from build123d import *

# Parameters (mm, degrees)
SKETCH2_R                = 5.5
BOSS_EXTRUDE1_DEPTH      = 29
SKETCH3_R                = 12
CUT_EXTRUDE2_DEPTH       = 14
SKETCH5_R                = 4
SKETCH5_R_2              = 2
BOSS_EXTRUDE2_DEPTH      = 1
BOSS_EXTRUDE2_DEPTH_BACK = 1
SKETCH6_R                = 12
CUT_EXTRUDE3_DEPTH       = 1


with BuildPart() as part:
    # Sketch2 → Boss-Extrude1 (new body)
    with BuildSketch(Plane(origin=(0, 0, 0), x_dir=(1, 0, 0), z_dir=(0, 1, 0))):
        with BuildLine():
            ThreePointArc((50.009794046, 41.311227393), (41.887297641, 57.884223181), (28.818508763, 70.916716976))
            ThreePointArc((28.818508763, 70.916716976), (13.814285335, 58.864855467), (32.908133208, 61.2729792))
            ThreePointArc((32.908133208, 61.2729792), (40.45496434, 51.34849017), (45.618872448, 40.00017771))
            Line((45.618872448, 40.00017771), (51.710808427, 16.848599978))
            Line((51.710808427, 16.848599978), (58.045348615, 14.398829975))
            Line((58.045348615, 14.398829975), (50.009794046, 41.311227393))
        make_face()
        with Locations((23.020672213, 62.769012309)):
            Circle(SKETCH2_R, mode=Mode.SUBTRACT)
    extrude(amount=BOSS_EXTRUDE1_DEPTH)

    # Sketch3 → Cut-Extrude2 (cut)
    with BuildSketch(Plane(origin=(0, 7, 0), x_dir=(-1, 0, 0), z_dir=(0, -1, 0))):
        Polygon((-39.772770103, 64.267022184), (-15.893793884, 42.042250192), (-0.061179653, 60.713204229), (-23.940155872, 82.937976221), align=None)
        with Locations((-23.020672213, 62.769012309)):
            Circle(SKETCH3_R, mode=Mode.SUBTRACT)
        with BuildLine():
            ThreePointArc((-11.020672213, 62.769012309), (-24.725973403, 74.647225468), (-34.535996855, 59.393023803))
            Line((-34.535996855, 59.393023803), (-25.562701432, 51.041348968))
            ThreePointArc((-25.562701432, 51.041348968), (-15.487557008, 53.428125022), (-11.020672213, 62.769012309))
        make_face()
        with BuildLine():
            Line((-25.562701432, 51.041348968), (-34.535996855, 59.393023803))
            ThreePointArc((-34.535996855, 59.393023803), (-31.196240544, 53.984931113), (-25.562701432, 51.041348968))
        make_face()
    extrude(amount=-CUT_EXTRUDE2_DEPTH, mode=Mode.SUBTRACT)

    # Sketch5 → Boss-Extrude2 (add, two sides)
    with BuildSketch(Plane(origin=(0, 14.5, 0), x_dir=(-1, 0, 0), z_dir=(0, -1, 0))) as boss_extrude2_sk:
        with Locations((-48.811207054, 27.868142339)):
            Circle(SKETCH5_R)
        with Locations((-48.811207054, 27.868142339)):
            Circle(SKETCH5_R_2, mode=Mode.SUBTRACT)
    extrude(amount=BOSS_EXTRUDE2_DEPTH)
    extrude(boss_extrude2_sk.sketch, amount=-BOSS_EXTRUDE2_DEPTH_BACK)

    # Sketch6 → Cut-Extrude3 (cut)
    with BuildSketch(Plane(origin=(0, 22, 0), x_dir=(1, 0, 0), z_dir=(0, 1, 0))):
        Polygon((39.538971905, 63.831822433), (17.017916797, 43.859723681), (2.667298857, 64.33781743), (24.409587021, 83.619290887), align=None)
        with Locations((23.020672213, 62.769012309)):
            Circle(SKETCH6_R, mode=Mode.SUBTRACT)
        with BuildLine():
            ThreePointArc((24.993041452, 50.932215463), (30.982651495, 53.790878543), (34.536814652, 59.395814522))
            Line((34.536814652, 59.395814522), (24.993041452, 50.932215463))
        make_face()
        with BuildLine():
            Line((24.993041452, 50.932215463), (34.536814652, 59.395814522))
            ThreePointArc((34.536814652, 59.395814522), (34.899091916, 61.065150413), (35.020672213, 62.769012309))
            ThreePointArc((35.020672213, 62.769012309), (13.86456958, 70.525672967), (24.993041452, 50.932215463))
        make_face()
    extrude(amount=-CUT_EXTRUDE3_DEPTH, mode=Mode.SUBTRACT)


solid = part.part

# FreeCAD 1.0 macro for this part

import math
import FreeCAD as App
import Part
import Sketcher

V = App.Vector
Q = App.Units.Quantity

doc = App.newDocument("Part")
body = doc.addObject("PartDesign::Body", "Body")

# Sketch on XZ plane
sketch1 = doc.addObject("Sketcher::SketchObject", "Sketch")
body.addObject(sketch1)
sketch1.AttachmentSupport = (doc.XZ_Plane, [""])
sketch1.MapMode = "FlatFace"
sketch1.addGeometry([
    Part.ArcOfCircle(Part.Circle(V(-4, -25, 0), V(0, 0, 1), 56), math.radians(-55), math.radians(-17)),  # 0
    Part.ArcOfCircle(Part.Circle(V(23, -63, 0), V(0, 0, 1), 10), math.radians(9), math.radians(305)),  # 1
    Part.ArcOfCircle(Part.Circle(V(-8, -23, 0), V(0, 0, 1), 56), math.radians(-44), math.radians(-18)),  # 2
    Part.LineSegment(V(46, -40, 0), V(52, -17, 0)),  # 3
    Part.LineSegment(V(52, -17, 0), V(58, -14, 0)),  # 4
    Part.LineSegment(V(58, -14, 0), V(50, -41, 0)),  # 5
    Part.Circle(V(23, -63, 0), V(0, 0, 1), 6),  # 6
], False)
sketch1.addConstraint([
    Sketcher.Constraint("Tangent", 0, 1, 1, 2),
    Sketcher.Constraint("Coincident", 1, 1, 2, 1),
    Sketcher.Constraint("Coincident", 2, 2, 3, 1),
    Sketcher.Constraint("Coincident", 3, 2, 4, 1),
    Sketcher.Constraint("Coincident", 4, 2, 5, 1),
    Sketcher.Constraint("Tangent", 5, 2, 0, 2),
    Sketcher.Constraint("Coincident", 6, 3, 1, 3),
    Sketcher.Constraint("Equal", 0, 2),
    Sketcher.Constraint("Diameter", 6, Q("11 mm")),
    Sketcher.Constraint("Radius", 0, Q("56 mm")),
    Sketcher.Constraint("Radius", 1, Q("10 mm")),
    Sketcher.Constraint("DistanceY", 3, 2, -1, 1, Q("16.8486 mm")),
    Sketcher.Constraint("DistanceY", 1, 1, 2, 2, Q("21.272801 mm")),
    Sketcher.Constraint("DistanceX", 1, 3, 2, 2, Q("22.5982 mm")),
    Sketcher.Constraint("Distance", 3, Q("23.939658 mm")),
    Sketcher.Constraint("DistanceY", 0, 3, -1, 1, Q("25.289571 mm")),
    Sketcher.Constraint("DistanceX", 2, 3, -1, 1, Q("7.61734 mm")),
    Sketcher.Constraint("DistanceX", -1, 1, 0, 1, Q("28.818509 mm")),
    Sketcher.Constraint("DistanceY", 1, 1, -1, 1, Q("61.272979 mm")),
    Sketcher.Constraint("DistanceX", -1, 1, 4, 2, Q("58.045349 mm")),
    Sketcher.Constraint("DistanceY", 4, 2, -1, 1, Q("14.39883 mm")),
])
pad1 = doc.addObject("PartDesign::Pad", "Pad")
body.addObject(pad1)
pad1.Profile = sketch1
pad1.Length = 29
pad1.Reversed = True

# Sketch on XZ plane
sketch2 = doc.addObject("Sketcher::SketchObject", "Sketch001")
body.addObject(sketch2)
sketch2.AttachmentSupport = (doc.XZ_Plane, [""])
sketch2.MapMode = "FlatFace"
sketch2.AttachmentOffset = App.Placement(V(0, 0, -7), App.Rotation())
sketch2.addGeometry([
    Part.LineSegment(V(16, -42, 0), V(0, -61, 0)),  # 0
    Part.LineSegment(V(0, -61, 0), V(24, -83, 0)),  # 1
    Part.LineSegment(V(24, -83, 0), V(40, -64, 0)),  # 2
    Part.LineSegment(V(40, -64, 0), V(35, -59, 0)),  # 3
    Part.ArcOfCircle(Part.Circle(V(23, -63, 0), V(0, 0, 1), 12), math.radians(16), math.radians(78)),  # 4
    Part.LineSegment(V(26, -51, 0), V(16, -42, 0)),  # 5
], False)
sketch2.addConstraint([
    Sketcher.Constraint("Coincident", 0, 2, 1, 1),
    Sketcher.Constraint("Coincident", 1, 2, 2, 1),
    Sketcher.Constraint("Coincident", 2, 2, 3, 1),
    Sketcher.Constraint("Coincident", 3, 2, 4, 1),
    Sketcher.Constraint("Coincident", 4, 2, 5, 1),
    Sketcher.Constraint("Coincident", 5, 2, 0, 1),
    Sketcher.Constraint("Parallel", 0, 2),
    Sketcher.Constraint("Parallel", 1, 3),
    Sketcher.Constraint("Parallel", 3, 5),
    Sketcher.Constraint("Equal", 0, 2),
    Sketcher.Constraint("Radius", 4, Q("12 mm")),
    Sketcher.Constraint("DistanceY", 2, 2, 3, 2, Q("4.873998 mm")),
    Sketcher.Constraint("DistanceX", -1, 1, 4, 2, Q("25.562701 mm")),
    Sketcher.Constraint("DistanceY", 4, 2, 5, 2, Q("8.999099 mm")),
    Sketcher.Constraint("Distance", 0, Q("24.480118 mm")),
    Sketcher.Constraint("Distance", 1, Q("32.621251 mm")),
    Sketcher.Constraint("DistanceX", -1, 1, 0, 2, Q("0.06118 mm")),
    Sketcher.Constraint("DistanceX", -1, 1, 2, 2, Q("39.77277 mm")),
    Sketcher.Constraint("DistanceY", 4, 2, -1, 1, Q("51.041349 mm")),
])
pocket1 = doc.addObject("PartDesign::Pocket", "Pocket")
body.addObject(pocket1)
pocket1.Profile = sketch2
pocket1.Length = 14

# Sketch on XZ plane
sketch3 = doc.addObject("Sketcher::SketchObject", "Sketch002")
body.addObject(sketch3)
sketch3.AttachmentSupport = (doc.XZ_Plane, [""])
sketch3.MapMode = "FlatFace"
sketch3.AttachmentOffset = App.Placement(V(0, 0, -14.5), App.Rotation())
sketch3.addGeometry([
    Part.Circle(V(48.8, -27.9, 0), V(0, 0, 1), 4),
    Part.Circle(V(48.8, -27.9, 0), V(0, 0, 1), 2),
], False)
sketch3.addConstraint([
    Sketcher.Constraint("Coincident", 1, 3, 0, 3),
    Sketcher.Constraint("Diameter", 0, Q("8 mm")),
    Sketcher.Constraint("Diameter", 1, Q("4 mm")),
    Sketcher.Constraint("DistanceX", -1, 1, 0, 3, Q("48.811207 mm")),
    Sketcher.Constraint("DistanceY", 0, 3, -1, 1, Q("27.868142 mm")),
])
pad2 = doc.addObject("PartDesign::Pad", "Pad001")
body.addObject(pad2)
pad2.Profile = sketch3
pad2.Type = "TwoLengths"
pad2.Length = 1
pad2.Length2 = 1

# Sketch on XZ plane
sketch4 = doc.addObject("Sketcher::SketchObject", "Sketch003")
body.addObject(sketch4)
sketch4.AttachmentSupport = (doc.XZ_Plane, [""])
sketch4.MapMode = "FlatFace"
sketch4.AttachmentOffset = App.Placement(V(0, 0, -22), App.Rotation())
sketch4.addGeometry([
    Part.LineSegment(V(3, -64, 0), V(17, -44, 0)),  # 0
    Part.LineSegment(V(17, -44, 0), V(25, -51, 0)),  # 1
    Part.ArcOfCircle(Part.Circle(V(23, -63, 0), V(0, 0, 1), 12), math.radians(16), math.radians(81)),  # 2
    Part.LineSegment(V(35, -59, 0), V(40, -64, 0)),  # 3
    Part.LineSegment(V(40, -64, 0), V(24, -84, 0)),  # 4
    Part.LineSegment(V(24, -84, 0), V(3, -64, 0)),  # 5
], False)
sketch4.addConstraint([
    Sketcher.Constraint("Coincident", 0, 2, 1, 1),
    Sketcher.Constraint("Coincident", 1, 2, 2, 2),
    Sketcher.Constraint("Coincident", 2, 1, 3, 1),
    Sketcher.Constraint("Coincident", 3, 2, 4, 1),
    Sketcher.Constraint("Coincident", 4, 2, 5, 1),
    Sketcher.Constraint("Coincident", 5, 2, 0, 1),
    Sketcher.Constraint("Parallel", 1, 3),
    Sketcher.Constraint("Parallel", 3, 5),
    Sketcher.Constraint("Radius", 2, Q("12 mm")),
    Sketcher.Constraint("DistanceX", -1, 1, 5, 2, Q("2.667299 mm")),
    Sketcher.Constraint("DistanceY", 2, 1, 1, 2, Q("8.463599 mm")),
    Sketcher.Constraint("DistanceX", 2, 3, 3, 2, Q("16.5183 mm")),
    Sketcher.Constraint("DistanceY", 3, 2, 0, 2, Q("19.972099 mm")),
    Sketcher.Constraint("DistanceY", 5, 2, 1, 2, Q("13.405602 mm")),
    Sketcher.Constraint("Distance", 0, Q("25.00585 mm")),
    Sketcher.Constraint("Distance", 5, Q("29.060322 mm")),
    Sketcher.Constraint("DistanceX", -1, 1, 1, 2, Q("24.993041 mm")),
    Sketcher.Constraint("DistanceX", -1, 1, 3, 2, Q("39.538972 mm")),
    Sketcher.Constraint("DistanceY", 4, 2, -1, 1, Q("83.619291 mm")),
])
pocket2 = doc.addObject("PartDesign::Pocket", "Pocket001")
body.addObject(pocket2)
pocket2.Profile = sketch4
pocket2.Length = 1
pocket2.Reversed = True

doc.recompute()
